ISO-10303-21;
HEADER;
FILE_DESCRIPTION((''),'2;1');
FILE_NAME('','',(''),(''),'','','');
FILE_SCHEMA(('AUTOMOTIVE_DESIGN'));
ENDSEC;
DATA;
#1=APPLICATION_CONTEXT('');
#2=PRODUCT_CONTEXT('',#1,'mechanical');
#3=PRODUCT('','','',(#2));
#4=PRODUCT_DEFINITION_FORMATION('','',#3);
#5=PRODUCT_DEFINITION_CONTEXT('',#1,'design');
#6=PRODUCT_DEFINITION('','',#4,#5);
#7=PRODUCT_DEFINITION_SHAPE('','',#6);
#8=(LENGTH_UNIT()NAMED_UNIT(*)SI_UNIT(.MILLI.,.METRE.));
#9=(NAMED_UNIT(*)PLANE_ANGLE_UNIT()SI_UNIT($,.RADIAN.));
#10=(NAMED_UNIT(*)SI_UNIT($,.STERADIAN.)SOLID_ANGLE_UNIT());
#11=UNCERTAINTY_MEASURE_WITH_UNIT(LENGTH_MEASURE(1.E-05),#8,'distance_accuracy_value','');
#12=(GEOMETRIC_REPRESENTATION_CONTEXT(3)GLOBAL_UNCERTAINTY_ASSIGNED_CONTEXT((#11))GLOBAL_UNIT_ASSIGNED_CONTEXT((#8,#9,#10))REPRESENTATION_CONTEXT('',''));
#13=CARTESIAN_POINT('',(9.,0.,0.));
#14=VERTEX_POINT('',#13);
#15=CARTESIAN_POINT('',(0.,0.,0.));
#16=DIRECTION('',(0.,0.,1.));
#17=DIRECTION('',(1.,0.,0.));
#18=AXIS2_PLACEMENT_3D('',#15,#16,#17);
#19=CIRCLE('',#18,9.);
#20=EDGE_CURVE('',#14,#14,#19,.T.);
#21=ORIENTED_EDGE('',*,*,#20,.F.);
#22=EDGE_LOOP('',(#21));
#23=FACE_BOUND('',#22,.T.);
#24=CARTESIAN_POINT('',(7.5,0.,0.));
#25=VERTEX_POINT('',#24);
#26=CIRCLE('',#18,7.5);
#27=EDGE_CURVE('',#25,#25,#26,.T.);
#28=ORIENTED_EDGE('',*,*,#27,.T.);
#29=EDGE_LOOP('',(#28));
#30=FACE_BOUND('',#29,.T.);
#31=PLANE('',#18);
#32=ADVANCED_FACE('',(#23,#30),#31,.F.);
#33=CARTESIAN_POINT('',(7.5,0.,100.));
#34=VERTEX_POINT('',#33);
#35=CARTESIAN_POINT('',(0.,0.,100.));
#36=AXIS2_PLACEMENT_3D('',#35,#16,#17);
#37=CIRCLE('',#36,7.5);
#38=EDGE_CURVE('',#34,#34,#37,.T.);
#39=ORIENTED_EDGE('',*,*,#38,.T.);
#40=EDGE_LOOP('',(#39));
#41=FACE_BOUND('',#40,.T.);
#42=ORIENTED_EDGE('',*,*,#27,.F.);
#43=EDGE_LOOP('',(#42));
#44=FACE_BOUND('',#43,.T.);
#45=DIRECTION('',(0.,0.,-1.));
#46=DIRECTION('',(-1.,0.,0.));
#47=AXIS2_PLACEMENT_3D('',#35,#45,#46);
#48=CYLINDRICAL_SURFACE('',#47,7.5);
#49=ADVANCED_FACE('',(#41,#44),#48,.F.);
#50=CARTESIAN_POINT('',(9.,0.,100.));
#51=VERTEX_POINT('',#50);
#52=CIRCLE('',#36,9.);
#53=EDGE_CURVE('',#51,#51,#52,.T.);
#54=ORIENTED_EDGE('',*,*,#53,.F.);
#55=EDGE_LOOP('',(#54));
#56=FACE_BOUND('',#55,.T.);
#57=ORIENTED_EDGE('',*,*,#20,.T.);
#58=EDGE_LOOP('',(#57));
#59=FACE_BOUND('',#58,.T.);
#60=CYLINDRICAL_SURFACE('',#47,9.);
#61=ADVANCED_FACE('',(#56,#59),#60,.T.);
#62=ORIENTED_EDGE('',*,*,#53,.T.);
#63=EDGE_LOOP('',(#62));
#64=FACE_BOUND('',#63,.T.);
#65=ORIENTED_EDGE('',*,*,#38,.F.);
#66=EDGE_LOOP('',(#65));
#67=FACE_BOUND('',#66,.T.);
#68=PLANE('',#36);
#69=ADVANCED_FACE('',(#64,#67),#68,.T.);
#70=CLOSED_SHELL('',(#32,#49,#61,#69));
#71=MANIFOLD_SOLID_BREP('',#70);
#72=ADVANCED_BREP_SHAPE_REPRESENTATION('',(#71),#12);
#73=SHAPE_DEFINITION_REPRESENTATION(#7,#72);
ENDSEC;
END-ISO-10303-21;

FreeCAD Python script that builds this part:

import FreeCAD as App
import Part
import Sketcher
from FreeCAD import Vector
Q = App.Units.Quantity

doc = App.newDocument("Part")
body = doc.addObject("PartDesign::Body", "Body")

sketch1 = body.newObject("Sketcher::SketchObject", "Sketch")
sketch1.AttachmentSupport = (doc.getObject("XY_Plane"), [""])
sketch1.MapMode = "FlatFace"
sketch1.addGeometry(Part.Circle(Vector(0, 0, 0), Vector(0, 0, 1), 9), False)
sketch1.addGeometry(Part.Circle(Vector(0, 0, 0), Vector(0, 0, 1), 8), False)
sketch1.addConstraint(Sketcher.Constraint("Coincident", 0, 3, -1, 1))
sketch1.addConstraint(Sketcher.Constraint("Coincident", 1, 3, -1, 1))
sketch1.addConstraint(Sketcher.Constraint("Diameter", 0, Q("18 mm")))
sketch1.addConstraint(Sketcher.Constraint("Diameter", 1, Q("15 mm")))
pad1 = body.newObject("PartDesign::Pad", "Pad")
pad1.Profile = sketch1
pad1.Length = 100

doc.recompute()
